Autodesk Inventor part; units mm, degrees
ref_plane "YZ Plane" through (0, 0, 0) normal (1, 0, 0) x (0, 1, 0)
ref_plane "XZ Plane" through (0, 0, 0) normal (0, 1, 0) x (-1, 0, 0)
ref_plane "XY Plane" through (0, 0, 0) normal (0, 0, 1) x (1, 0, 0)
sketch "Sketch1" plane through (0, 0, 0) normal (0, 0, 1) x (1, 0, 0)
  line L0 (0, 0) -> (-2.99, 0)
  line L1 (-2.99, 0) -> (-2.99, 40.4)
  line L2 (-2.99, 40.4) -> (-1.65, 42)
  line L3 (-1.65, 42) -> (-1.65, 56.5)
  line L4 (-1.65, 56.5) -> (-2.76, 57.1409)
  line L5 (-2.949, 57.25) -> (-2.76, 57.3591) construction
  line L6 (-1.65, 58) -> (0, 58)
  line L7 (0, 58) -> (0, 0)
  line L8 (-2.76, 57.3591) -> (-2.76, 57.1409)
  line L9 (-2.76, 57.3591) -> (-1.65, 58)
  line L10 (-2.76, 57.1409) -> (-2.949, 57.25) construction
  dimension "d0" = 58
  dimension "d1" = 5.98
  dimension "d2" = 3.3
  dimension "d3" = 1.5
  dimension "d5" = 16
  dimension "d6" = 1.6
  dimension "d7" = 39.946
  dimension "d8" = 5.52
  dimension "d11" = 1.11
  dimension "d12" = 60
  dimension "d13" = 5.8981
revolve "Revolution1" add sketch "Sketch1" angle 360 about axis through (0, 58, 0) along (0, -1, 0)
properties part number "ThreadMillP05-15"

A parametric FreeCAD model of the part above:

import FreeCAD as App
import Part
import Sketcher


def add_polygon(sketch, points):
    """Adds a closed chain of lines whose ends are joined by coincident constraints."""
    first, n = sketch.GeometryCount, len(points)
    for a, b in zip(points, points[1:] + points[:1]):
        sketch.addGeometry(Part.LineSegment(App.Vector(*a, 0), App.Vector(*b, 0)), False)
    for i in range(n):
        sketch.addConstraint(Sketcher.Constraint("Coincident", first + i, 2, first + (i + 1) % n, 1))

doc = App.newDocument("Part")
body = doc.addObject("PartDesign::Body", "Body")

sketch1 = body.newObject("Sketcher::SketchObject", "Sketch")
sketch1.AttachmentSupport = (doc.getObject("XY_Plane"), [""])
sketch1.MapMode = "FlatFace"
add_polygon(sketch1, [(-2.99, 0), (0, 0), (0, 58), (-1.65, 58), (-2.76, 57.36), (-2.76, 57.14), (-1.65, 56.5), (-1.65, 42), (-2.99, 40.4)])
sketch1.addConstraint([
    Sketcher.Constraint("Horizontal", 0),
    Sketcher.Constraint("Vertical", 1),
    Sketcher.Constraint("Horizontal", 2),
    Sketcher.Constraint("Vertical", 4),
    Sketcher.Constraint("Vertical", 6),
    Sketcher.Constraint("Vertical", 8),
    Sketcher.Constraint("Coincident", 0, 2, -1, 1),
    Sketcher.Constraint("Vertical", 2, 2, 5, 2),
    Sketcher.Constraint("Equal", 3, 5),
    Sketcher.Constraint("DistanceY", 1, 1, 1, 2, 58.0),
    Sketcher.Constraint("DistanceY", 6, 2, 2, 2, 16.0),
    Sketcher.Constraint("DistanceY", 5, 2, 2, 2, 1.5),
    Sketcher.Constraint("DistanceY", 7, 2, 6, 2, 1.6),
    Sketcher.Constraint("DistanceX", 3, 2, 2, 2, 1.11),
    Sketcher.Constraint("DistanceX", 0, 1, 0, 2, 2.99),
    Sketcher.Constraint("DistanceX", 2, 2, 2, 1, 1.65),
    Sketcher.Constraint("DistanceY", 4, 2, 4, 1, 0.2182),
])
revolution = body.newObject("PartDesign::Revolution", "Revolution")
revolution.Profile = sketch1
revolution.ReferenceAxis = (sketch1, ["V_Axis"])
revolution.Angle = 360

doc.recompute()
